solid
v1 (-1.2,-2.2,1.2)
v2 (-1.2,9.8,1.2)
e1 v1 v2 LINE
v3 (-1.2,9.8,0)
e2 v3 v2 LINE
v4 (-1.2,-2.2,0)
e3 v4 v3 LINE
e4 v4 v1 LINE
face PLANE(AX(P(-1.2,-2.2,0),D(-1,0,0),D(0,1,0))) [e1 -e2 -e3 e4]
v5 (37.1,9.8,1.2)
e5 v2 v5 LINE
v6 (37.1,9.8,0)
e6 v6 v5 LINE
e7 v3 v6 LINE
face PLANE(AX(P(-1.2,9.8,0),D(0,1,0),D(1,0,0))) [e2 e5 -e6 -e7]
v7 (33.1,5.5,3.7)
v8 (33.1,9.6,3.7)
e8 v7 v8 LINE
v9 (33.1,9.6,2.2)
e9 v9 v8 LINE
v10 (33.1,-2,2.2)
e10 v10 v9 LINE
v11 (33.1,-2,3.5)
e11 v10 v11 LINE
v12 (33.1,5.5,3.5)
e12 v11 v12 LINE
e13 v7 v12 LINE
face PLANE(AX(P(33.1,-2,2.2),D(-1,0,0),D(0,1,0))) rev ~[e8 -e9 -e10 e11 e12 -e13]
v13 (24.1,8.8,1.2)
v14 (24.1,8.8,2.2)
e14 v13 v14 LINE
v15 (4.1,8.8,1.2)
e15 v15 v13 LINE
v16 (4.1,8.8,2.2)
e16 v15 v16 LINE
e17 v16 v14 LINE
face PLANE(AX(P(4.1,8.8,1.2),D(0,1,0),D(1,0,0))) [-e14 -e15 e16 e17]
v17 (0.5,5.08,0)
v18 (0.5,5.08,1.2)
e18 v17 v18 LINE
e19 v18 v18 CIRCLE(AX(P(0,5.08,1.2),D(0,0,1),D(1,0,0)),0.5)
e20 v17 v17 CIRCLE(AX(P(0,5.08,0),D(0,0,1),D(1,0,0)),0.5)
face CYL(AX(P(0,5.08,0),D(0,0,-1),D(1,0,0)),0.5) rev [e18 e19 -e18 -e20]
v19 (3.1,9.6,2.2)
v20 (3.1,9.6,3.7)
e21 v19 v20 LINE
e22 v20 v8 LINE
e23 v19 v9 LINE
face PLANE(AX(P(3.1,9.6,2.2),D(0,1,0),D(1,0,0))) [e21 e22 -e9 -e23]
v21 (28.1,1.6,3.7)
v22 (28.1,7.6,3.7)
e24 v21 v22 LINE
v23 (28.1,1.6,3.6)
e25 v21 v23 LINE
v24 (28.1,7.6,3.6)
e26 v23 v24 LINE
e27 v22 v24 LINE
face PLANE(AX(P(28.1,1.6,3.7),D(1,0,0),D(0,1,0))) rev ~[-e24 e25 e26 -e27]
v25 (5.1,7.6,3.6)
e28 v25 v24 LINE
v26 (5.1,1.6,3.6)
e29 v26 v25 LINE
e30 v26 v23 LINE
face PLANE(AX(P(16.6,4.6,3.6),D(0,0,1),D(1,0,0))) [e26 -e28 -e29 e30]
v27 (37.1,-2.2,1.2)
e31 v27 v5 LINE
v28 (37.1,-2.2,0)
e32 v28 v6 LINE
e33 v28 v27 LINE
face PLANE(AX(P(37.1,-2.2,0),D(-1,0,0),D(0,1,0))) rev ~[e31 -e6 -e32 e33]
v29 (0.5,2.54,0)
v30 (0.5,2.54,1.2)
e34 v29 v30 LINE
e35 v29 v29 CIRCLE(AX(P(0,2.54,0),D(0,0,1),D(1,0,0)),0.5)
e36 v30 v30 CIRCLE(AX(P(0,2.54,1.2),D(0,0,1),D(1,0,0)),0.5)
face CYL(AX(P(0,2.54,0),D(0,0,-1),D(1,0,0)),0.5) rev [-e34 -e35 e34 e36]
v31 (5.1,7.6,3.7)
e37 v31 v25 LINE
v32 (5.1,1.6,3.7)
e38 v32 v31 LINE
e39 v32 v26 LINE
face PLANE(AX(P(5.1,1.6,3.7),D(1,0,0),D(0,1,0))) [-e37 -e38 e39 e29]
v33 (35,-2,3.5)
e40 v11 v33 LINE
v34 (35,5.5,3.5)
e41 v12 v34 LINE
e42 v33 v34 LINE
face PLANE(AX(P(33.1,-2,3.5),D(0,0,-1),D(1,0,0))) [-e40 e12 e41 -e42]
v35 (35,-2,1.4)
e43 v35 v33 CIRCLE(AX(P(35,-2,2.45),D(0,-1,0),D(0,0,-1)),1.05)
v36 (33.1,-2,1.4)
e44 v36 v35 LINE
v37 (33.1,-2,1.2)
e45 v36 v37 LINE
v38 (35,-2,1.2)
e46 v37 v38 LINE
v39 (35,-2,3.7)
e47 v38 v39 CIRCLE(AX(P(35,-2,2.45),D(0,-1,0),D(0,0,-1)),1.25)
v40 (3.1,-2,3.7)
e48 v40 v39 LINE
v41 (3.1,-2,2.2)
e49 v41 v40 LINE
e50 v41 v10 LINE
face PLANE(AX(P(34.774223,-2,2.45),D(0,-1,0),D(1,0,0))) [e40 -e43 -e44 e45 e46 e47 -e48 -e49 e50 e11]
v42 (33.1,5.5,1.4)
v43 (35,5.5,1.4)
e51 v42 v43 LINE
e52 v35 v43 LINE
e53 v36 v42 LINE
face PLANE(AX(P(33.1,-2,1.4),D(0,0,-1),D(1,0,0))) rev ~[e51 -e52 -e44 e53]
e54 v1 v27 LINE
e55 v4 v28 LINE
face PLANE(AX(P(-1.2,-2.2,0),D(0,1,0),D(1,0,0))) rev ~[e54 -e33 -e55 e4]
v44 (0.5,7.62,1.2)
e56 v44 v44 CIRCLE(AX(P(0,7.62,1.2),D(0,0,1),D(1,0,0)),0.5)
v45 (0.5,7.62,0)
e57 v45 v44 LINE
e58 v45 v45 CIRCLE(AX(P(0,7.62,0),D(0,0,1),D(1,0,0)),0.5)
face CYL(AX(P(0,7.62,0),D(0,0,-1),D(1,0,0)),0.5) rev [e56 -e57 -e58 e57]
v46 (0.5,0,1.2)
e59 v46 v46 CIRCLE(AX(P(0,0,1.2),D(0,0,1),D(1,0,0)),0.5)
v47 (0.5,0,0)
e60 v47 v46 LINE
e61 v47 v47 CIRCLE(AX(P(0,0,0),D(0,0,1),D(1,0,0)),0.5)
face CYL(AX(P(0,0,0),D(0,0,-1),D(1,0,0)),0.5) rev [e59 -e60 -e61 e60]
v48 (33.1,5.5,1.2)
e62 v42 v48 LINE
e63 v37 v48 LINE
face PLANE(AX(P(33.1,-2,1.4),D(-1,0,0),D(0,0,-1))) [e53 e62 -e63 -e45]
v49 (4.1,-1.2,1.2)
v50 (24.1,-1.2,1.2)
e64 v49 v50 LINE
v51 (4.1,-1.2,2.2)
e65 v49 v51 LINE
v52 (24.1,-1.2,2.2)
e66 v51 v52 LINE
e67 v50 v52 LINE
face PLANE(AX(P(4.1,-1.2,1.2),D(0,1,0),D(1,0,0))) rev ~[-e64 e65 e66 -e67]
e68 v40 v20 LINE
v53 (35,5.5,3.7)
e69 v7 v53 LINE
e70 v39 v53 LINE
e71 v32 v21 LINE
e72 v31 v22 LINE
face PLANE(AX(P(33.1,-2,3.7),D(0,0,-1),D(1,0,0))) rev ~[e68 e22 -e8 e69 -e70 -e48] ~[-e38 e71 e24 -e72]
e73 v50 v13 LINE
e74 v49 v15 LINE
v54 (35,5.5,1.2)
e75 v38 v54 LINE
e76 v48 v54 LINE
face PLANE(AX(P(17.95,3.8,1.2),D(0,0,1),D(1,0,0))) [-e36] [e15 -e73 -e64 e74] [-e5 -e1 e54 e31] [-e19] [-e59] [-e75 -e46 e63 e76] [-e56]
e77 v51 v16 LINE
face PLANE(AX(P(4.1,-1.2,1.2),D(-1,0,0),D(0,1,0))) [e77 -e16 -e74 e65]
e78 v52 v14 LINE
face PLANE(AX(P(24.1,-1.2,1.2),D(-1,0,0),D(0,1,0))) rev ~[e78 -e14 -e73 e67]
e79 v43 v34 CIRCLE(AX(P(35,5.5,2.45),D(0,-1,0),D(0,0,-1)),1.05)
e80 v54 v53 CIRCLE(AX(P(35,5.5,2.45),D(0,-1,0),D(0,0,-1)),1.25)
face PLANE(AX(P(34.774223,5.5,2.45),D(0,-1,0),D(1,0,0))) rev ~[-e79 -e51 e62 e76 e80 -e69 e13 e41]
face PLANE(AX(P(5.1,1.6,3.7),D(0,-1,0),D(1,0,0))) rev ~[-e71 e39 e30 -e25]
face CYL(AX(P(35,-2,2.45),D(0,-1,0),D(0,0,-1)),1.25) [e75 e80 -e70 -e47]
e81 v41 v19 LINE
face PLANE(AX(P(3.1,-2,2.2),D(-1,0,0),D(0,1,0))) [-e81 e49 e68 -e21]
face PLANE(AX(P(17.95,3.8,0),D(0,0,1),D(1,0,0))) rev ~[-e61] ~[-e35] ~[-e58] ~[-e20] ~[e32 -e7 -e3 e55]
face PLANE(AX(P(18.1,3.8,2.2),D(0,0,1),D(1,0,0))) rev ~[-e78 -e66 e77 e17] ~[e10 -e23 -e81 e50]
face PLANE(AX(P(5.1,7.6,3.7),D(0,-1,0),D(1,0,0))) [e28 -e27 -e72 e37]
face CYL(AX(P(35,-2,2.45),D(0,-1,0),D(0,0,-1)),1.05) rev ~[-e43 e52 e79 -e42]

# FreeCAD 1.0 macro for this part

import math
import FreeCAD as App
import Part
import Sketcher
from FreeCAD import Vector
Q = App.Units.Quantity

doc = App.newDocument("Part")
body = doc.addObject("PartDesign::Body", "Body")

# Sketch on XY plane
sketch1 = body.newObject("Sketcher::SketchObject", "Sketch")
sketch1.AttachmentSupport = (doc.getObject("XY_Plane"), [""])
sketch1.MapMode = "FlatFace"
sketch1.addGeometry([
    Part.LineSegment(Vector(-1.2, 9.8, 0), Vector(-1.2, -2.2, 0)),  # 0
    Part.LineSegment(Vector(-1.2, -2.2, 0), Vector(37.1, -2.2, 0)),  # 1
    Part.LineSegment(Vector(37.1, -2.2, 0), Vector(37.1, 9.8, 0)),  # 2
    Part.LineSegment(Vector(37.1, 9.8, 0), Vector(-1.2, 9.8, 0)),  # 3
    Part.Circle(Vector(0, 0, 0), Vector(0, 0, 1), 0.5),  # 4
    Part.Circle(Vector(0, 2.54, 0), Vector(0, 0, 1), 0.5),  # 5
    Part.Circle(Vector(0, 5.08, 0), Vector(0, 0, 1), 0.5),  # 6
    Part.Circle(Vector(0, 7.62, 0), Vector(0, 0, 1), 0.5),  # 7
], False)
sketch1.addConstraint([
    Sketcher.Constraint("Coincident", 0, 2, 1, 1),
    Sketcher.Constraint("Coincident", 1, 2, 2, 1),
    Sketcher.Constraint("Coincident", 2, 2, 3, 1),
    Sketcher.Constraint("Coincident", 3, 2, 0, 1),
    Sketcher.Constraint("Vertical", 0),
    Sketcher.Constraint("Horizontal", 1),
    Sketcher.Constraint("Vertical", 2),
    Sketcher.Constraint("Horizontal", 3),
    Sketcher.Constraint("Coincident", 4, 3, -1, 1),
    Sketcher.Constraint("Equal", 4, 5),
    Sketcher.Constraint("Equal", 5, 6),
    Sketcher.Constraint("Equal", 6, 7),
    Sketcher.Constraint("PointOnObject", 5, 3, -2),
    Sketcher.Constraint("PointOnObject", 6, 3, -2),
    Sketcher.Constraint("PointOnObject", 7, 3, -2),
    Sketcher.Constraint("Diameter", 4, Q("1 mm")),
    Sketcher.Constraint("DistanceY", 0, 2, 0, 1, Q("12 mm")),
    Sketcher.Constraint("DistanceX", 1, 1, 1, 2, Q("38.3 mm")),
    Sketcher.Constraint("DistanceX", 0, 2, -1, 1, Q("1.2 mm")),
    Sketcher.Constraint("DistanceY", 0, 2, -1, 1, Q("2.2 mm")),
    Sketcher.Constraint("DistanceY", -1, 1, 5, 3, Q("2.54 mm")),
    Sketcher.Constraint("DistanceY", -1, 1, 6, 3, Q("5.08 mm")),
    Sketcher.Constraint("DistanceY", -1, 1, 7, 3, Q("7.62 mm")),
])
pad1 = body.newObject("PartDesign::Pad", "Pad")
pad1.Profile = sketch1
pad1.Length = 1.2

# Sketch on XY plane
sketch2 = body.newObject("Sketcher::SketchObject", "Sketch001")
sketch2.AttachmentSupport = (doc.getObject("XY_Plane"), [""])
sketch2.MapMode = "FlatFace"
sketch2.AttachmentOffset = App.Placement(Vector(0, 0, 1.2), App.Rotation())
sketch2.addGeometry([
    Part.LineSegment(Vector(4.1, 8.8, 0), Vector(4.1, -1.2, 0)),
    Part.LineSegment(Vector(4.1, -1.2, 0), Vector(24.1, -1.2, 0)),
    Part.LineSegment(Vector(24.1, -1.2, 0), Vector(24.1, 8.8, 0)),
    Part.LineSegment(Vector(24.1, 8.8, 0), Vector(4.1, 8.8, 0)),
], False)
sketch2.addConstraint([
    Sketcher.Constraint("Coincident", 0, 2, 1, 1),
    Sketcher.Constraint("Coincident", 1, 2, 2, 1),
    Sketcher.Constraint("Coincident", 2, 2, 3, 1),
    Sketcher.Constraint("Coincident", 3, 2, 0, 1),
    Sketcher.Constraint("Vertical", 0),
    Sketcher.Constraint("Horizontal", 1),
    Sketcher.Constraint("Vertical", 2),
    Sketcher.Constraint("Horizontal", 3),
    Sketcher.Constraint("DistanceX", 1, 1, 1, 2, Q("20 mm")),
    Sketcher.Constraint("DistanceY", 0, 2, 0, 1, Q("10 mm")),
    Sketcher.Constraint("DistanceX", -1, 1, 0, 2, Q("4.1 mm")),
    Sketcher.Constraint("DistanceY", 0, 2, -1, 1, Q("1.2 mm")),
])
pad2 = body.newObject("PartDesign::Pad", "Pad001")
pad2.Profile = sketch2
pad2.Length = 1

# Sketch on XY plane
sketch3 = body.newObject("Sketcher::SketchObject", "Sketch002")
sketch3.AttachmentSupport = (doc.getObject("XY_Plane"), [""])
sketch3.MapMode = "FlatFace"
sketch3.AttachmentOffset = App.Placement(Vector(0, 0, 2.2), App.Rotation())
sketch3.addGeometry([
    Part.LineSegment(Vector(3.1, 9.6, 0), Vector(3.1, -2, 0)),
    Part.LineSegment(Vector(3.1, -2, 0), Vector(33.1, -2, 0)),
    Part.LineSegment(Vector(33.1, -2, 0), Vector(33.1, 9.6, 0)),
    Part.LineSegment(Vector(33.1, 9.6, 0), Vector(3.1, 9.6, 0)),
], False)
sketch3.addConstraint([
    Sketcher.Constraint("Coincident", 0, 2, 1, 1),
    Sketcher.Constraint("Coincident", 1, 2, 2, 1),
    Sketcher.Constraint("Coincident", 2, 2, 3, 1),
    Sketcher.Constraint("Coincident", 3, 2, 0, 1),
    Sketcher.Constraint("Vertical", 0),
    Sketcher.Constraint("Horizontal", 1),
    Sketcher.Constraint("Vertical", 2),
    Sketcher.Constraint("Horizontal", 3),
    Sketcher.Constraint("DistanceX", 1, 1, 1, 2, Q("30 mm")),
    Sketcher.Constraint("DistanceY", 0, 2, 0, 1, Q("11.6 mm")),
    Sketcher.Constraint("DistanceY", 0, 2, -1, 1, Q("2 mm")),
    Sketcher.Constraint("DistanceX", -1, 1, 0, 2, Q("3.1 mm")),
])
pad3 = body.newObject("PartDesign::Pad", "Pad002")
pad3.Profile = sketch3
pad3.Length = 1.5

# Sketch on XZ plane
sketch4 = body.newObject("Sketcher::SketchObject", "Sketch003")
sketch4.AttachmentSupport = (doc.getObject("XZ_Plane"), [""])
sketch4.MapMode = "FlatFace"
sketch4.AttachmentOffset = App.Placement(Vector(0, 0, 2), App.Rotation())
sketch4.addGeometry([
    Part.ArcOfCircle(Part.Circle(Vector(35, 2.45, 0), Vector(0, 0, 1), 1.25), math.radians(-90), math.radians(90)),  # 0
    Part.LineSegment(Vector(35, 3.7, 0), Vector(33.1, 3.7, 0)),  # 1
    Part.LineSegment(Vector(33.1, 3.7, 0), Vector(33.1, 3.5, 0)),  # 2
    Part.LineSegment(Vector(33.1, 3.5, 0), Vector(35, 3.5, 0)),  # 3
    Part.ArcOfCircle(Part.Circle(Vector(35, 2.45, 0), Vector(0, 0, 1), 1.05), math.radians(-90), math.radians(90)),  # 4
    Part.LineSegment(Vector(35, 1.4, 0), Vector(33.1, 1.4, 0)),  # 5
    Part.LineSegment(Vector(33.1, 1.4, 0), Vector(33.1, 1.2, 0)),  # 6
    Part.LineSegment(Vector(33.1, 1.2, 0), Vector(35, 1.2, 0)),  # 7
], False)
sketch4.addConstraint([
    Sketcher.Constraint("Tangent", 0, 2, 1, 1),
    Sketcher.Constraint("Coincident", 1, 2, 2, 1),
    Sketcher.Constraint("Coincident", 2, 2, 3, 1),
    Sketcher.Constraint("Tangent", 3, 2, 4, 2),
    Sketcher.Constraint("Tangent", 4, 1, 5, 1),
    Sketcher.Constraint("Coincident", 5, 2, 6, 1),
    Sketcher.Constraint("Coincident", 6, 2, 7, 1),
    Sketcher.Constraint("Tangent", 7, 2, 0, 1),
    Sketcher.Constraint("Horizontal", 1),
    Sketcher.Constraint("Vertical", 2),
    Sketcher.Constraint("Horizontal", 3),
    Sketcher.Constraint("Horizontal", 5),
    Sketcher.Constraint("Vertical", 6),
    Sketcher.Constraint("Horizontal", 7),
    Sketcher.Constraint("Coincident", 4, 3, 0, 3),
    Sketcher.Constraint("Vertical", 2, 2, 5, 2),
    Sketcher.Constraint("Radius", 0, Q("1.25 mm")),
    Sketcher.Constraint("Radius", 4, Q("1.05 mm")),
    Sketcher.Constraint("DistanceX", 1, 2, 1, 1, Q("1.9 mm")),
    Sketcher.Constraint("DistanceX", -1, 1, 0, 3, Q("35 mm")),
    Sketcher.Constraint("DistanceY", -1, 1, 0, 2, Q("3.7 mm")),
])
pad4 = body.newObject("PartDesign::Pad", "Pad003")
pad4.Profile = sketch4
pad4.Length = 7.5
pad4.Reversed = True

# Sketch on XY plane
sketch5 = body.newObject("Sketcher::SketchObject", "Sketch004")
sketch5.AttachmentSupport = (doc.getObject("XY_Plane"), [""])
sketch5.MapMode = "FlatFace"
sketch5.AttachmentOffset = App.Placement(Vector(0, 0, 3.7), App.Rotation())
sketch5.addGeometry([
    Part.LineSegment(Vector(5.1, 7.6, 0), Vector(5.1, 1.6, 0)),
    Part.LineSegment(Vector(5.1, 1.6, 0), Vector(28.1, 1.6, 0)),
    Part.LineSegment(Vector(28.1, 1.6, 0), Vector(28.1, 7.6, 0)),
    Part.LineSegment(Vector(28.1, 7.6, 0), Vector(5.1, 7.6, 0)),
], False)
sketch5.addConstraint([
    Sketcher.Constraint("Coincident", 0, 2, 1, 1),
    Sketcher.Constraint("Coincident", 1, 2, 2, 1),
    Sketcher.Constraint("Coincident", 2, 2, 3, 1),
    Sketcher.Constraint("Coincident", 3, 2, 0, 1),
    Sketcher.Constraint("Vertical", 0),
    Sketcher.Constraint("Horizontal", 1),
    Sketcher.Constraint("Vertical", 2),
    Sketcher.Constraint("Horizontal", 3),
    Sketcher.Constraint("DistanceX", 1, 1, 1, 2, Q("23 mm")),
    Sketcher.Constraint("DistanceY", 0, 2, 0, 1, Q("6 mm")),
    Sketcher.Constraint("DistanceX", -1, 1, 0, 2, Q("5.1 mm")),
    Sketcher.Constraint("DistanceY", -1, 1, 0, 2, Q("1.6 mm")),
])
pocket1 = body.newObject("PartDesign::Pocket", "Pocket")
pocket1.Profile = sketch5
pocket1.Length = 0.1

doc.recompute()
